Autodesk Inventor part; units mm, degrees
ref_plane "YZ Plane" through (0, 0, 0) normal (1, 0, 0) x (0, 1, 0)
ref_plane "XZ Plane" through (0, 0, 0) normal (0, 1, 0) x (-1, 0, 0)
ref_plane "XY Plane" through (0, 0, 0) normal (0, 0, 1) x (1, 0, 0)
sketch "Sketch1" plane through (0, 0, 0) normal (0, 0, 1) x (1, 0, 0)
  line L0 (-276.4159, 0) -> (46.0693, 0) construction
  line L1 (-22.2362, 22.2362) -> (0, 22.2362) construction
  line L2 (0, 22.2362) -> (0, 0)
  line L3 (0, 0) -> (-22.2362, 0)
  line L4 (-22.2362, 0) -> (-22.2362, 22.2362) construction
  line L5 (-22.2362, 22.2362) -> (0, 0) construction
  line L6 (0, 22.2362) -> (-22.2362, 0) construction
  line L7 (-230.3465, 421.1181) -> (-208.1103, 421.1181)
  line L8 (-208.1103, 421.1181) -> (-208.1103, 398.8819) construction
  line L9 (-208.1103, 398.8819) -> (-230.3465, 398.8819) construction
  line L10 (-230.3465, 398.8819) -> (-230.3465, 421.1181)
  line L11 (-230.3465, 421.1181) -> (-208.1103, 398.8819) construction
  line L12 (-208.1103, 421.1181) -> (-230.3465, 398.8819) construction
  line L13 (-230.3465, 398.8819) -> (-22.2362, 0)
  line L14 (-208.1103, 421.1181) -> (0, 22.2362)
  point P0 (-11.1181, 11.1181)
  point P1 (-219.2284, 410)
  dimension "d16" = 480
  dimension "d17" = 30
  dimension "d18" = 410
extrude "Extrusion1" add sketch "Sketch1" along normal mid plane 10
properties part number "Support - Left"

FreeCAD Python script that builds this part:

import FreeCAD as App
import Part
import Sketcher
Q = App.Units.Quantity

doc = App.newDocument("Part")
body = doc.addObject("PartDesign::Body", "Body")

sketch1 = body.newObject("Sketcher::SketchObject", "Sketch")
sketch1.AttachmentSupport = (doc.getObject("XY_Plane"), [""])
sketch1.MapMode = "FlatFace"
sketch1.addGeometry([
    Part.LineSegment(App.Vector(0, 0, 0), App.Vector(0, 22.2362, 0)),
    Part.LineSegment(App.Vector(0, 22.2362, 0), App.Vector(-208.1103, 421.1181, 0)),
    Part.LineSegment(App.Vector(-208.1103, 421.1181, 0), App.Vector(-230.3465, 421.1181, 0)),
    Part.LineSegment(App.Vector(-230.3465, 421.1181, 0), App.Vector(-230.3465, 398.8819, 0)),
    Part.LineSegment(App.Vector(-230.3465, 398.8819, 0), App.Vector(-22.2362, 0, 0)),
    Part.LineSegment(App.Vector(-22.2362, 0, 0), App.Vector(0, 0, 0)),
], False)
sketch1.addConstraint([
    Sketcher.Constraint("Coincident", 0, 2, 1, 1),
    Sketcher.Constraint("Coincident", 1, 2, 2, 1),
    Sketcher.Constraint("Coincident", 2, 2, 3, 1),
    Sketcher.Constraint("Coincident", 3, 2, 4, 1),
    Sketcher.Constraint("Coincident", 4, 2, 5, 1),
    Sketcher.Constraint("Coincident", 5, 2, 0, 1),
    Sketcher.Constraint("Vertical", 0),
    Sketcher.Constraint("Horizontal", 2),
    Sketcher.Constraint("Vertical", 3),
    Sketcher.Constraint("Horizontal", 5),
    Sketcher.Constraint("Coincident", 5, 2, -1, 1),
    Sketcher.Constraint("Parallel", 1, 4),
    Sketcher.Constraint("Equal", 2, 5),
    Sketcher.Constraint("Equal", 5, 0),
    Sketcher.Constraint("DistanceX", 2, 2, 2, 1, Q("22.2362 mm")),
    Sketcher.Constraint("DistanceY", -1, 1, 1, 2, Q("421.118 mm")),
    Sketcher.Constraint("DistanceX", 1, 2, 4, 2, Q("185.874 mm")),
])
pad1 = body.newObject("PartDesign::Pad", "Pad")
pad1.Profile = sketch1
pad1.Length = 10
pad1.Midplane = True

doc.recompute()
